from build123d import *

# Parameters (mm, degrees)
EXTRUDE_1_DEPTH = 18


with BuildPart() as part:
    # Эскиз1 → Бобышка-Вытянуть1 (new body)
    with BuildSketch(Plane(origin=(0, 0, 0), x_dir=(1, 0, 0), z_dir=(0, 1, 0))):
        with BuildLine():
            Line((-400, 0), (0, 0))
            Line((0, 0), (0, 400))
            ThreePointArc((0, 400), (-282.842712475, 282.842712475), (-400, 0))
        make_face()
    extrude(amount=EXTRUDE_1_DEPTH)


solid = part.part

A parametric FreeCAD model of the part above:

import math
import FreeCAD as App
import Part
import Sketcher

V = App.Vector

doc = App.newDocument("Part")
body = doc.addObject("PartDesign::Body", "Body")

# Sketch on XZ plane
sketch1 = body.newObject("Sketcher::SketchObject", "Sketch")
sketch1.AttachmentSupport = (doc.getObject("XZ_Plane"), [""])
sketch1.MapMode = "FlatFace"
sketch1.addGeometry([
    Part.LineSegment(V(-400, 0, 0), V(0, 0, 0)),
    Part.LineSegment(V(0, 0, 0), V(0, -400, 0)),
    Part.ArcOfCircle(Part.Circle(V(0, 0, 0), V(0, 0, 1), 400), math.radians(180), math.radians(270)),
], False)
sketch1.addConstraint([
    Sketcher.Constraint("Coincident", 0, 2, 1, 1),
    Sketcher.Constraint("Coincident", 1, 2, 2, 2),
    Sketcher.Constraint("Coincident", 2, 1, 0, 1),
    Sketcher.Constraint("Horizontal", 0),
    Sketcher.Constraint("Vertical", 1),
    Sketcher.Constraint("Coincident", 2, 3, -1, 1),
    Sketcher.Constraint("Coincident", 0, 2, -1, 1),
    Sketcher.Constraint("Radius", 2, 400.0),
])
pad1 = body.newObject("PartDesign::Pad", "Pad")
pad1.Profile = sketch1
pad1.Length = 18
pad1.Reversed = True

doc.recompute()
